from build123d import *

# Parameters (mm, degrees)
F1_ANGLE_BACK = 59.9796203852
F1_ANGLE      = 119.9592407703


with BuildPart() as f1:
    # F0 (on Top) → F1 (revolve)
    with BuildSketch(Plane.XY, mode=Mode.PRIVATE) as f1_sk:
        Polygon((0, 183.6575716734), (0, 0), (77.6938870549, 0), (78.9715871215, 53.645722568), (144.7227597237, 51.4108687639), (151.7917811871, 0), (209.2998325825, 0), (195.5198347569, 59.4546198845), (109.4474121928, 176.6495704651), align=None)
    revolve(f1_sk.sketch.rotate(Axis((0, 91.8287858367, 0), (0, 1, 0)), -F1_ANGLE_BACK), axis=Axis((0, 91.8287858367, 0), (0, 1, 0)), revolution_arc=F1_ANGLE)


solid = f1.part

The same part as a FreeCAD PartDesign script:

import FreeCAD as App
import Part
import Sketcher


def add_polygon(sketch, points):
    """Adds a closed chain of lines whose ends are joined by coincident constraints."""
    first, n = sketch.GeometryCount, len(points)
    for a, b in zip(points, points[1:] + points[:1]):
        sketch.addGeometry(Part.LineSegment(App.Vector(*a, 0), App.Vector(*b, 0)), False)
    for i in range(n):
        sketch.addConstraint(Sketcher.Constraint("Coincident", first + i, 2, first + (i + 1) % n, 1))

doc = App.newDocument("Part")
params = doc.addObject("Spreadsheet::Sheet", "Params")
for row, (alias, value) in enumerate([
    ("revolution_angle", "119.959241 deg"),
], start=1):
    params.set(f"A{row}", alias)
    params.set(f"B{row}", "=" + value)
    params.setAlias(f"B{row}", alias)

body = doc.addObject("PartDesign::Body", "Body")

sketch1 = doc.addObject("Sketcher::SketchObject", "Sketch")
body.addObject(sketch1)
sketch1.Placement = App.Placement(App.Vector(0, 0, 0), App.Rotation(App.Vector(0.500308006, 0, 0.865847503), App.Vector(0, 0.999999999, 0), App.Vector(-0.865847503, 0, 0.500308006), "ZXY"))
add_polygon(sketch1, [(0, 184), (0, 0), (78, 0), (79, 54), (145, 51), (152, 0), (209, 0), (196, 59), (109, 177)])
sketch1.addConstraint([
    Sketcher.Constraint("Vertical", 0),
    Sketcher.Constraint("Horizontal", 1),
    Sketcher.Constraint("Horizontal", 5),
    Sketcher.Constraint("Coincident", 0, 2, -1, 1),
    Sketcher.Constraint("PointOnObject", 4, 2, -1),
    Sketcher.Constraint("DistanceY", 7, 2, 8, 2, 7.008001),
    Sketcher.Constraint("DistanceX", 5, 1, 5, 2, 57.508051),
    Sketcher.Constraint("DistanceY", 0, 2, 0, 1, 183.657571),
    Sketcher.Constraint("DistanceX", 1, 2, 2, 2, 1.2777),
    Sketcher.Constraint("DistanceY", 3, 2, 7, 2, 125.238702),
    Sketcher.Constraint("Distance", 4, 51.89459),
    Sketcher.Constraint("Distance", 6, 61.030649),
    Sketcher.Constraint("DistanceX", 1, 1, 1, 2, 77.693887),
    Sketcher.Constraint("DistanceX", -1, 1, 3, 2, 144.72276),
    Sketcher.Constraint("DistanceY", -1, 1, 6, 2, 59.45462),
    Sketcher.Constraint("DistanceX", 7, 2, 4, 2, 42.344369),
    Sketcher.Constraint("DistanceY", 2, 2, 8, 2, 130.011849),
])
revolution = doc.addObject("PartDesign::Revolution", "Revolution")
body.addObject(revolution)
revolution.Profile = sketch1
revolution.ReferenceAxis = (sketch1, ["V_Axis"])
revolution.setExpression("Angle", "Params.revolution_angle")

doc.recompute()
